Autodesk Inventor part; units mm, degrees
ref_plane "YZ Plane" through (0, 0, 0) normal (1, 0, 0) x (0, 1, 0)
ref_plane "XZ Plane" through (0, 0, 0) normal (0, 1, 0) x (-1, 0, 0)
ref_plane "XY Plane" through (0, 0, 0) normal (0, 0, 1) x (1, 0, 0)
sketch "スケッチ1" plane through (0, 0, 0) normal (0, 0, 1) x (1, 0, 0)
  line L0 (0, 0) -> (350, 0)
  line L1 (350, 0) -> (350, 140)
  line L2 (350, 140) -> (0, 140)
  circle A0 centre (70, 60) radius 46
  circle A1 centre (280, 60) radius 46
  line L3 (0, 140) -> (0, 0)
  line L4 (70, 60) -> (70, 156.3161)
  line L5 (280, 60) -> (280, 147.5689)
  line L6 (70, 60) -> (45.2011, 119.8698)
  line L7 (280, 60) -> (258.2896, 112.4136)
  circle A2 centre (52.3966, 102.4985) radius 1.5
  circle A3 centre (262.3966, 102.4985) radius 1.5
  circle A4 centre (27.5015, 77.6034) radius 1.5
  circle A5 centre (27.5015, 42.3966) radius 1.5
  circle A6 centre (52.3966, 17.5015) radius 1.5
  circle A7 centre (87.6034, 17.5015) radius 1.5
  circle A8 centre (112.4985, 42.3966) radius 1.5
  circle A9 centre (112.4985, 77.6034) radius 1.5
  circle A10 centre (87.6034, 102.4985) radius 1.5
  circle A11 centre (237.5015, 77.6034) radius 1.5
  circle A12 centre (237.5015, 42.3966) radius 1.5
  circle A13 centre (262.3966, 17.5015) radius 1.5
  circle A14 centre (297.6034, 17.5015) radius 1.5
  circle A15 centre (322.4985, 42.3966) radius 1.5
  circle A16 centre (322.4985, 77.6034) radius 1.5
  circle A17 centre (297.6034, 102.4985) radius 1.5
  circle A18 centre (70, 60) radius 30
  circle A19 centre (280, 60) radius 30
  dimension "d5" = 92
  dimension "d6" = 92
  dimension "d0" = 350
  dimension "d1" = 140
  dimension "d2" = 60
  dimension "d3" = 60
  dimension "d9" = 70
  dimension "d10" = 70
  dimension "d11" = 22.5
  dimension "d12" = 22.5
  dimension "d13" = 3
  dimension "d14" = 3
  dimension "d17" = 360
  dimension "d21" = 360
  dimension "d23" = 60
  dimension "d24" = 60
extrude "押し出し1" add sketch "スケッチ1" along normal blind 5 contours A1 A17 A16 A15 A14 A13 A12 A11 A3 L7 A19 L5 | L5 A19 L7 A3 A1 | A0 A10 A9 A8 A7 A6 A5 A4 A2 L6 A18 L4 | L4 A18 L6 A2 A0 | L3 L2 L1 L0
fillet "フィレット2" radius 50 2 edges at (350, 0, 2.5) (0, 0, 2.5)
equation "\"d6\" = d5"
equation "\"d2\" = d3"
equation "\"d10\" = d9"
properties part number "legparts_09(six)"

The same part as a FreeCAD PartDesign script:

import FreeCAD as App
import Part
import Sketcher
from FreeCAD import Vector


def edges_at(feature, points):
    """Names of the edges that pass closest to the given points."""
    edges = feature.Shape.Edges
    near = lambda p: min(range(len(edges)), key=lambda i: edges[i].distToShape(Part.Vertex(*p))[0])
    return sorted({f"Edge{near(p) + 1}" for p in points})

doc = App.newDocument("Part")
params = doc.addObject("Spreadsheet::Sheet", "Params")
for row, (alias, value) in enumerate([
    ("sketch1_diameter", "3 mm"),
    ("sketch1_diameter2", "60 mm"),
    ("sketch1_width", "350 mm"),
    ("sketch1_width2", "70 mm"),
    ("sketch1_height", "140 mm"),
    ("pad1_length", "5 mm"),
    ("fillet_radius", "50 mm"),
], start=1):
    params.set(f"A{row}", alias)
    params.set(f"B{row}", "=" + value)
    params.setAlias(f"B{row}", alias)

body = doc.addObject("PartDesign::Body", "Body")

sketch1 = body.newObject("Sketcher::SketchObject", "Sketch")
sketch1.AttachmentSupport = (doc.getObject("XY_Plane"), [""])
sketch1.MapMode = "FlatFace"
sketch1.addGeometry([
    Part.LineSegment(Vector(0, 140, 0), Vector(0, 0, 0)),
    Part.LineSegment(Vector(0, 0, 0), Vector(350, 0, 0)),
    Part.LineSegment(Vector(350, 0, 0), Vector(350, 140, 0)),
    Part.LineSegment(Vector(350, 140, 0), Vector(280, 140, 0)),
    Part.LineSegment(Vector(280, 140, 0), Vector(70, 140, 0)),
    Part.LineSegment(Vector(70, 140, 0), Vector(0, 140, 0)),
    Part.Circle(Vector(297.6, 102.5, 0), Vector(0, 0, 1), 1.5),
    Part.Circle(Vector(322.5, 77.6, 0), Vector(0, 0, 1), 1.5),
    Part.Circle(Vector(322.5, 42.4, 0), Vector(0, 0, 1), 1.5),
    Part.Circle(Vector(297.6, 17.5, 0), Vector(0, 0, 1), 1.5),
    Part.Circle(Vector(262.4, 17.5, 0), Vector(0, 0, 1), 1.5),
    Part.Circle(Vector(237.5, 42.4, 0), Vector(0, 0, 1), 1.5),
    Part.Circle(Vector(237.5, 77.6, 0), Vector(0, 0, 1), 1.5),
    Part.Circle(Vector(262.4, 102.5, 0), Vector(0, 0, 1), 1.5),
    Part.Circle(Vector(280, 60, 0), Vector(0, 0, 1), 30),
    Part.Circle(Vector(52.4, 102.5, 0), Vector(0, 0, 1), 1.5),
    Part.Circle(Vector(27.5, 77.6, 0), Vector(0, 0, 1), 1.5),
    Part.Circle(Vector(27.5, 42.4, 0), Vector(0, 0, 1), 1.5),
    Part.Circle(Vector(52.4, 17.5, 0), Vector(0, 0, 1), 1.5),
    Part.Circle(Vector(87.6, 17.5, 0), Vector(0, 0, 1), 1.5),
    Part.Circle(Vector(112.5, 42.4, 0), Vector(0, 0, 1), 1.5),
    Part.Circle(Vector(112.5, 77.6, 0), Vector(0, 0, 1), 1.5),
    Part.Circle(Vector(87.6, 102.5, 0), Vector(0, 0, 1), 1.5),
    Part.Circle(Vector(70, 60, 0), Vector(0, 0, 1), 30),
], False)
sketch1.addConstraint([
    Sketcher.Constraint("Coincident", 0, 2, 1, 1),
    Sketcher.Constraint("Coincident", 1, 2, 2, 1),
    Sketcher.Constraint("Coincident", 2, 2, 3, 1),
    Sketcher.Constraint("Coincident", 3, 2, 4, 1),
    Sketcher.Constraint("Coincident", 4, 2, 5, 1),
    Sketcher.Constraint("Coincident", 5, 2, 0, 1),
    Sketcher.Constraint("Vertical", 0),
    Sketcher.Constraint("Horizontal", 1),
    Sketcher.Constraint("Vertical", 2),
    Sketcher.Constraint("Horizontal", 3),
    Sketcher.Constraint("Horizontal", 4),
    Sketcher.Constraint("Horizontal", 5),
    Sketcher.Constraint("Coincident", 0, 2, -1, 1),
    Sketcher.Constraint("Equal", 6, 7),
    Sketcher.Constraint("Equal", 7, 8),
    Sketcher.Constraint("Equal", 8, 9),
    Sketcher.Constraint("Equal", 9, 10),
    Sketcher.Constraint("Equal", 10, 11),
    Sketcher.Constraint("Equal", 11, 12),
    Sketcher.Constraint("Equal", 12, 13),
    Sketcher.Constraint("Equal", 13, 15),
    Sketcher.Constraint("Equal", 15, 16),
    Sketcher.Constraint("Equal", 16, 17),
    Sketcher.Constraint("Equal", 17, 18),
    Sketcher.Constraint("Equal", 18, 19),
    Sketcher.Constraint("Equal", 19, 20),
    Sketcher.Constraint("Equal", 20, 21),
    Sketcher.Constraint("Equal", 21, 22),
    Sketcher.Constraint("Equal", 14, 23),
    Sketcher.Constraint("Horizontal", 9, 3, 10, 3),
    Sketcher.Constraint("Horizontal", 8, 3, 11, 3),
    Sketcher.Constraint("Horizontal", 7, 3, 12, 3),
    Sketcher.Constraint("Horizontal", 6, 3, 13, 3),
    Sketcher.Constraint("Horizontal", 13, 3, 15, 3),
    Sketcher.Constraint("Horizontal", 12, 3, 16, 3),
    Sketcher.Constraint("Horizontal", 11, 3, 17, 3),
    Sketcher.Constraint("Horizontal", 10, 3, 18, 3),
    Sketcher.Constraint("Horizontal", 18, 3, 19, 3),
    Sketcher.Constraint("Horizontal", 17, 3, 20, 3),
    Sketcher.Constraint("Horizontal", 16, 3, 21, 3),
    Sketcher.Constraint("Horizontal", 15, 3, 22, 3),
    Sketcher.Constraint("Horizontal", 14, 3, 23, 3),
    Sketcher.Constraint("Vertical", 7, 3, 8, 3),
    Sketcher.Constraint("Vertical", 6, 3, 9, 3),
    Sketcher.Constraint("Vertical", 11, 3, 12, 3),
    Sketcher.Constraint("Vertical", 10, 3, 13, 3),
    Sketcher.Constraint("Vertical", 16, 3, 17, 3),
    Sketcher.Constraint("Vertical", 15, 3, 18, 3),
    Sketcher.Constraint("Vertical", 20, 3, 21, 3),
    Sketcher.Constraint("Vertical", 19, 3, 22, 3),
    Sketcher.Constraint("Vertical", 14, 3, 3, 2),
    Sketcher.Constraint("Vertical", 23, 3, 4, 2),
    Sketcher.Constraint("Equal", 3, 5),
    Sketcher.Constraint("Diameter", 6, 3.0),
    Sketcher.Constraint("Diameter", 14, 60.0),
    Sketcher.Constraint("DistanceX", 1, 1, 1, 2, 350.0),
    Sketcher.Constraint("DistanceX", 3, 2, 3, 1, 70.0),
    Sketcher.Constraint("DistanceY", 0, 2, 0, 1, 140.0),
    Sketcher.Constraint("DistanceY", -1, 1, 14, 3, 60.0),
    Sketcher.Constraint("DistanceX", 15, 3, 13, 3, 210.0),
    Sketcher.Constraint("DistanceX", 16, 3, 12, 3, 210.0),
    Sketcher.Constraint("DistanceX", 6, 3, 7, 3, 24.895),
    Sketcher.Constraint("DistanceY", 7, 3, 6, 3, 24.895),
    Sketcher.Constraint("DistanceY", 8, 3, 6, 3, 60.102),
    Sketcher.Constraint("DistanceY", 9, 3, 8, 3, 24.895),
    Sketcher.Constraint("DistanceX", 10, 3, 8, 3, 60.102),
    Sketcher.Constraint("DistanceX", 11, 3, 10, 3, 24.895),
    Sketcher.Constraint("DistanceX", 17, 3, 19, 3, 60.102),
    Sketcher.Constraint("DistanceX", 19, 3, 20, 3, 24.895),
    Sketcher.Constraint("DistanceX", -1, 1, 6, 3, 297.6034),
    Sketcher.Constraint("DistanceY", -1, 1, 6, 3, 102.4985),
])
sketch1.setExpression("Constraints[53]", "Params.sketch1_diameter")
sketch1.setExpression("Constraints[54]", "Params.sketch1_diameter2")
sketch1.setExpression("Constraints[55]", "Params.sketch1_width")
sketch1.setExpression("Constraints[56]", "Params.sketch1_width2")
sketch1.setExpression("Constraints[57]", "Params.sketch1_height")
pad1 = body.newObject("PartDesign::Pad", "Pad")
pad1.Profile = sketch1
pad1.setExpression("Length", "Params.pad1_length")
doc.recompute()

fillet = body.newObject("PartDesign::Fillet", "Fillet")
fillet.Base = (pad1, edges_at(pad1, [(350, 0, 2.5), (0, 0, 2.5)]))
fillet.setExpression("Radius", "Params.fillet_radius")

doc.recompute()
